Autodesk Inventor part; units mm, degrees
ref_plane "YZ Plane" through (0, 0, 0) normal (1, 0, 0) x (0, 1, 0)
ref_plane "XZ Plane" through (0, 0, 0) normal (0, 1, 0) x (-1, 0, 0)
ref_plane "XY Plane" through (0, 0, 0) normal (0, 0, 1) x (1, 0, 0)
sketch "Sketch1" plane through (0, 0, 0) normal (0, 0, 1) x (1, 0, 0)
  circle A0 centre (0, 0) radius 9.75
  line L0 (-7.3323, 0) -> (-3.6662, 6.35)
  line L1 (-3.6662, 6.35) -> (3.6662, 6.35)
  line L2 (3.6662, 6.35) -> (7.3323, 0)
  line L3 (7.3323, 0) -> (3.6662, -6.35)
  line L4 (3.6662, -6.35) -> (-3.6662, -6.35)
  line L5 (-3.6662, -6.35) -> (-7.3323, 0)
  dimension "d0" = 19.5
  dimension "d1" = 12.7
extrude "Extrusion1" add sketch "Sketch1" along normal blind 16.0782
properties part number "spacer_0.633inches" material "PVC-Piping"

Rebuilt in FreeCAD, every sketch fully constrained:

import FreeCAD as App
import Part
import Sketcher

V = App.Vector
Q = App.Units.Quantity

doc = App.newDocument("Part")
params = doc.addObject("Spreadsheet::Sheet", "Params")
for row, (alias, value) in enumerate([
    ("sketch1_diameter", "19.5 mm"),
    ("pad1_length", "16.0782 mm"),
], start=1):
    params.set(f"A{row}", alias)
    params.set(f"B{row}", "=" + value)
    params.setAlias(f"B{row}", alias)

body = doc.addObject("PartDesign::Body", "Body")

sketch1 = body.newObject("Sketcher::SketchObject", "Sketch")
sketch1.AttachmentSupport = (doc.getObject("XY_Plane"), [""])
sketch1.MapMode = "FlatFace"
sketch1.addGeometry([
    Part.Circle(V(0, 0, 0), V(0, 0, 1), 9.75),
    Part.LineSegment(V(-3.6662, -6.35, 0), V(-7.3323, 0, 0)),
    Part.LineSegment(V(-7.3323, 0, 0), V(-3.6662, 6.35, 0)),
    Part.LineSegment(V(-3.6662, 6.35, 0), V(3.6662, 6.35, 0)),
    Part.LineSegment(V(3.6662, 6.35, 0), V(7.3323, 0, 0)),
    Part.LineSegment(V(7.3323, 0, 0), V(3.6662, -6.35, 0)),
    Part.LineSegment(V(3.6662, -6.35, 0), V(-3.6662, -6.35, 0)),
], False)
sketch1.addConstraint([
    Sketcher.Constraint("Coincident", 1, 2, 2, 1),
    Sketcher.Constraint("Coincident", 2, 2, 3, 1),
    Sketcher.Constraint("Coincident", 3, 2, 4, 1),
    Sketcher.Constraint("Coincident", 4, 2, 5, 1),
    Sketcher.Constraint("Coincident", 5, 2, 6, 1),
    Sketcher.Constraint("Coincident", 6, 2, 1, 1),
    Sketcher.Constraint("Horizontal", 3),
    Sketcher.Constraint("Horizontal", 6),
    Sketcher.Constraint("Coincident", 0, 3, -1, 1),
    Sketcher.Constraint("Symmetric", 1, 2, 4, 2, -1, 1),
    Sketcher.Constraint("Symmetric", 2, 2, 5, 2, -1, 1),
    Sketcher.Constraint("PointOnObject", 1, 2, -1),
    Sketcher.Constraint("Parallel", 1, 4),
    Sketcher.Constraint("Vertical", 3, 2, 5, 2),
    Sketcher.Constraint("Diameter", 0, 19.5),
    Sketcher.Constraint("DistanceY", 5, 2, 3, 2, 12.7),
    Sketcher.Constraint("Angle", 1, Q("119.9995 deg")),
    Sketcher.Constraint("DistanceX", 3, 1, 3, 2, 7.3324),
])
sketch1.setExpression("Constraints[14]", "Params.sketch1_diameter")
pad1 = body.newObject("PartDesign::Pad", "Pad")
pad1.Profile = sketch1
pad1.setExpression("Length", "Params.pad1_length")

doc.recompute()
